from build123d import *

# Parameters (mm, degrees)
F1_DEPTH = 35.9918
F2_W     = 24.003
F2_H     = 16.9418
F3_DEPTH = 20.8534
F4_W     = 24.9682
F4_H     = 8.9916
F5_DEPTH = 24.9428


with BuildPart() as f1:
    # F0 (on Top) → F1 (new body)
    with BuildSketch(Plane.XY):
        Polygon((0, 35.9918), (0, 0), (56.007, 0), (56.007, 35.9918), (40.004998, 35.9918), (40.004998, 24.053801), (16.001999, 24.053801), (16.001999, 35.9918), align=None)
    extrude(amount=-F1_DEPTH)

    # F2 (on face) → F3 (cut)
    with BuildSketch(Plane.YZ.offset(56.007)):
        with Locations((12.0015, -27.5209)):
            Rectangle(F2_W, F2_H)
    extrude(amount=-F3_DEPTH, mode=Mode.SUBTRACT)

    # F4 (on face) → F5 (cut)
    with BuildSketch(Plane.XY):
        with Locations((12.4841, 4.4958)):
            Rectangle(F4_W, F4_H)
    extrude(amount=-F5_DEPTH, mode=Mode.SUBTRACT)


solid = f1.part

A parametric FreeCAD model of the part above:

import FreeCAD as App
import Part
import Sketcher
from FreeCAD import Vector
Q = App.Units.Quantity


def add_polygon(sketch, points):
    """Adds a closed chain of lines whose ends are joined by coincident constraints."""
    first, n = sketch.GeometryCount, len(points)
    for a, b in zip(points, points[1:] + points[:1]):
        sketch.addGeometry(Part.LineSegment(App.Vector(*a, 0), App.Vector(*b, 0)), False)
    for i in range(n):
        sketch.addConstraint(Sketcher.Constraint("Coincident", first + i, 2, first + (i + 1) % n, 1))

doc = App.newDocument("Part")
body = doc.addObject("PartDesign::Body", "Body")

# Sketch on XY plane
sketch1 = doc.addObject("Sketcher::SketchObject", "Sketch")
body.addObject(sketch1)
sketch1.AttachmentSupport = (doc.XY_Plane, [""])
sketch1.MapMode = "FlatFace"
add_polygon(sketch1, [(0, 36), (0, 0), (56, 0), (56, 36), (40, 36), (40, 24), (16, 24), (16, 36)])  # lines 0-7
sketch1.addConstraint(Sketcher.Constraint("Vertical", 0))
sketch1.addConstraint(Sketcher.Constraint("Horizontal", 1))
sketch1.addConstraint(Sketcher.Constraint("Vertical", 2))
sketch1.addConstraint(Sketcher.Constraint("Horizontal", 3))
sketch1.addConstraint(Sketcher.Constraint("Vertical", 4))
sketch1.addConstraint(Sketcher.Constraint("Horizontal", 5))
sketch1.addConstraint(Sketcher.Constraint("Vertical", 6))
sketch1.addConstraint(Sketcher.Constraint("Horizontal", 7))
sketch1.addConstraint(Sketcher.Constraint("Coincident", 0, 2, -1, 1))
sketch1.addConstraint(Sketcher.Constraint("Horizontal", 3, 2, 6, 2))
sketch1.addConstraint(Sketcher.Constraint("DistanceX", 3, 2, 3, 1, Q("0.6300001 in")))
sketch1.addConstraint(Sketcher.Constraint("DistanceX", 7, 2, 7, 1, Q("0.63 in")))
sketch1.addConstraint(Sketcher.Constraint("DistanceY", 4, 2, 4, 1, Q("0.47 in")))
sketch1.addConstraint(Sketcher.Constraint("DistanceX", 1, 1, 1, 2, Q("2.205 in")))
sketch1.addConstraint(Sketcher.Constraint("DistanceY", 0, 2, 0, 1, Q("1.417 in")))
pad1 = doc.addObject("PartDesign::Pad", "Pad")
body.addObject(pad1)
pad1.Profile = sketch1
pad1.Length = Q("1.417 in")
pad1.Reversed = True

# Sketch on YZ plane
sketch2 = doc.addObject("Sketcher::SketchObject", "Sketch001")
body.addObject(sketch2)
sketch2.AttachmentSupport = (doc.YZ_Plane, [""])
sketch2.MapMode = "FlatFace"
sketch2.AttachmentOffset = App.Placement(Vector(0, 0, 2.205 * 25.4), App.Rotation())
add_polygon(sketch2, [(0, -19), (0, -36), (24, -36), (24, -19)])  # lines 0-3
sketch2.addConstraint(Sketcher.Constraint("Vertical", 0))
sketch2.addConstraint(Sketcher.Constraint("Horizontal", 1))
sketch2.addConstraint(Sketcher.Constraint("Vertical", 2))
sketch2.addConstraint(Sketcher.Constraint("Horizontal", 3))
sketch2.addConstraint(Sketcher.Constraint("PointOnObject", 0, 2, -2))
sketch2.addConstraint(Sketcher.Constraint("DistanceX", 1, 1, 1, 2, Q("0.945 in")))
sketch2.addConstraint(Sketcher.Constraint("DistanceY", 0, 2, 0, 1, Q("0.667 in")))
sketch2.addConstraint(Sketcher.Constraint("DistanceY", 2, 2, -1, 1, Q("0.75 in")))
pocket1 = doc.addObject("PartDesign::Pocket", "Pocket")
body.addObject(pocket1)
pocket1.Profile = sketch2
pocket1.Length = Q("0.821 in")

# Sketch on XY plane
sketch3 = doc.addObject("Sketcher::SketchObject", "Sketch002")
body.addObject(sketch3)
sketch3.AttachmentSupport = (doc.XY_Plane, [""])
sketch3.MapMode = "FlatFace"
add_polygon(sketch3, [(0, 9), (0, 0), (25, 0), (25, 9)])  # lines 0-3
sketch3.addConstraint(Sketcher.Constraint("Vertical", 0))
sketch3.addConstraint(Sketcher.Constraint("Horizontal", 1))
sketch3.addConstraint(Sketcher.Constraint("Vertical", 2))
sketch3.addConstraint(Sketcher.Constraint("Horizontal", 3))
sketch3.addConstraint(Sketcher.Constraint("Coincident", 0, 2, -1, 1))
sketch3.addConstraint(Sketcher.Constraint("DistanceX", 1, 1, 1, 2, Q("0.983 in")))
sketch3.addConstraint(Sketcher.Constraint("DistanceY", 0, 2, 0, 1, Q("0.354 in")))
pocket2 = doc.addObject("PartDesign::Pocket", "Pocket001")
body.addObject(pocket2)
pocket2.Profile = sketch3
pocket2.Length = Q("0.982 in")

doc.recompute()
